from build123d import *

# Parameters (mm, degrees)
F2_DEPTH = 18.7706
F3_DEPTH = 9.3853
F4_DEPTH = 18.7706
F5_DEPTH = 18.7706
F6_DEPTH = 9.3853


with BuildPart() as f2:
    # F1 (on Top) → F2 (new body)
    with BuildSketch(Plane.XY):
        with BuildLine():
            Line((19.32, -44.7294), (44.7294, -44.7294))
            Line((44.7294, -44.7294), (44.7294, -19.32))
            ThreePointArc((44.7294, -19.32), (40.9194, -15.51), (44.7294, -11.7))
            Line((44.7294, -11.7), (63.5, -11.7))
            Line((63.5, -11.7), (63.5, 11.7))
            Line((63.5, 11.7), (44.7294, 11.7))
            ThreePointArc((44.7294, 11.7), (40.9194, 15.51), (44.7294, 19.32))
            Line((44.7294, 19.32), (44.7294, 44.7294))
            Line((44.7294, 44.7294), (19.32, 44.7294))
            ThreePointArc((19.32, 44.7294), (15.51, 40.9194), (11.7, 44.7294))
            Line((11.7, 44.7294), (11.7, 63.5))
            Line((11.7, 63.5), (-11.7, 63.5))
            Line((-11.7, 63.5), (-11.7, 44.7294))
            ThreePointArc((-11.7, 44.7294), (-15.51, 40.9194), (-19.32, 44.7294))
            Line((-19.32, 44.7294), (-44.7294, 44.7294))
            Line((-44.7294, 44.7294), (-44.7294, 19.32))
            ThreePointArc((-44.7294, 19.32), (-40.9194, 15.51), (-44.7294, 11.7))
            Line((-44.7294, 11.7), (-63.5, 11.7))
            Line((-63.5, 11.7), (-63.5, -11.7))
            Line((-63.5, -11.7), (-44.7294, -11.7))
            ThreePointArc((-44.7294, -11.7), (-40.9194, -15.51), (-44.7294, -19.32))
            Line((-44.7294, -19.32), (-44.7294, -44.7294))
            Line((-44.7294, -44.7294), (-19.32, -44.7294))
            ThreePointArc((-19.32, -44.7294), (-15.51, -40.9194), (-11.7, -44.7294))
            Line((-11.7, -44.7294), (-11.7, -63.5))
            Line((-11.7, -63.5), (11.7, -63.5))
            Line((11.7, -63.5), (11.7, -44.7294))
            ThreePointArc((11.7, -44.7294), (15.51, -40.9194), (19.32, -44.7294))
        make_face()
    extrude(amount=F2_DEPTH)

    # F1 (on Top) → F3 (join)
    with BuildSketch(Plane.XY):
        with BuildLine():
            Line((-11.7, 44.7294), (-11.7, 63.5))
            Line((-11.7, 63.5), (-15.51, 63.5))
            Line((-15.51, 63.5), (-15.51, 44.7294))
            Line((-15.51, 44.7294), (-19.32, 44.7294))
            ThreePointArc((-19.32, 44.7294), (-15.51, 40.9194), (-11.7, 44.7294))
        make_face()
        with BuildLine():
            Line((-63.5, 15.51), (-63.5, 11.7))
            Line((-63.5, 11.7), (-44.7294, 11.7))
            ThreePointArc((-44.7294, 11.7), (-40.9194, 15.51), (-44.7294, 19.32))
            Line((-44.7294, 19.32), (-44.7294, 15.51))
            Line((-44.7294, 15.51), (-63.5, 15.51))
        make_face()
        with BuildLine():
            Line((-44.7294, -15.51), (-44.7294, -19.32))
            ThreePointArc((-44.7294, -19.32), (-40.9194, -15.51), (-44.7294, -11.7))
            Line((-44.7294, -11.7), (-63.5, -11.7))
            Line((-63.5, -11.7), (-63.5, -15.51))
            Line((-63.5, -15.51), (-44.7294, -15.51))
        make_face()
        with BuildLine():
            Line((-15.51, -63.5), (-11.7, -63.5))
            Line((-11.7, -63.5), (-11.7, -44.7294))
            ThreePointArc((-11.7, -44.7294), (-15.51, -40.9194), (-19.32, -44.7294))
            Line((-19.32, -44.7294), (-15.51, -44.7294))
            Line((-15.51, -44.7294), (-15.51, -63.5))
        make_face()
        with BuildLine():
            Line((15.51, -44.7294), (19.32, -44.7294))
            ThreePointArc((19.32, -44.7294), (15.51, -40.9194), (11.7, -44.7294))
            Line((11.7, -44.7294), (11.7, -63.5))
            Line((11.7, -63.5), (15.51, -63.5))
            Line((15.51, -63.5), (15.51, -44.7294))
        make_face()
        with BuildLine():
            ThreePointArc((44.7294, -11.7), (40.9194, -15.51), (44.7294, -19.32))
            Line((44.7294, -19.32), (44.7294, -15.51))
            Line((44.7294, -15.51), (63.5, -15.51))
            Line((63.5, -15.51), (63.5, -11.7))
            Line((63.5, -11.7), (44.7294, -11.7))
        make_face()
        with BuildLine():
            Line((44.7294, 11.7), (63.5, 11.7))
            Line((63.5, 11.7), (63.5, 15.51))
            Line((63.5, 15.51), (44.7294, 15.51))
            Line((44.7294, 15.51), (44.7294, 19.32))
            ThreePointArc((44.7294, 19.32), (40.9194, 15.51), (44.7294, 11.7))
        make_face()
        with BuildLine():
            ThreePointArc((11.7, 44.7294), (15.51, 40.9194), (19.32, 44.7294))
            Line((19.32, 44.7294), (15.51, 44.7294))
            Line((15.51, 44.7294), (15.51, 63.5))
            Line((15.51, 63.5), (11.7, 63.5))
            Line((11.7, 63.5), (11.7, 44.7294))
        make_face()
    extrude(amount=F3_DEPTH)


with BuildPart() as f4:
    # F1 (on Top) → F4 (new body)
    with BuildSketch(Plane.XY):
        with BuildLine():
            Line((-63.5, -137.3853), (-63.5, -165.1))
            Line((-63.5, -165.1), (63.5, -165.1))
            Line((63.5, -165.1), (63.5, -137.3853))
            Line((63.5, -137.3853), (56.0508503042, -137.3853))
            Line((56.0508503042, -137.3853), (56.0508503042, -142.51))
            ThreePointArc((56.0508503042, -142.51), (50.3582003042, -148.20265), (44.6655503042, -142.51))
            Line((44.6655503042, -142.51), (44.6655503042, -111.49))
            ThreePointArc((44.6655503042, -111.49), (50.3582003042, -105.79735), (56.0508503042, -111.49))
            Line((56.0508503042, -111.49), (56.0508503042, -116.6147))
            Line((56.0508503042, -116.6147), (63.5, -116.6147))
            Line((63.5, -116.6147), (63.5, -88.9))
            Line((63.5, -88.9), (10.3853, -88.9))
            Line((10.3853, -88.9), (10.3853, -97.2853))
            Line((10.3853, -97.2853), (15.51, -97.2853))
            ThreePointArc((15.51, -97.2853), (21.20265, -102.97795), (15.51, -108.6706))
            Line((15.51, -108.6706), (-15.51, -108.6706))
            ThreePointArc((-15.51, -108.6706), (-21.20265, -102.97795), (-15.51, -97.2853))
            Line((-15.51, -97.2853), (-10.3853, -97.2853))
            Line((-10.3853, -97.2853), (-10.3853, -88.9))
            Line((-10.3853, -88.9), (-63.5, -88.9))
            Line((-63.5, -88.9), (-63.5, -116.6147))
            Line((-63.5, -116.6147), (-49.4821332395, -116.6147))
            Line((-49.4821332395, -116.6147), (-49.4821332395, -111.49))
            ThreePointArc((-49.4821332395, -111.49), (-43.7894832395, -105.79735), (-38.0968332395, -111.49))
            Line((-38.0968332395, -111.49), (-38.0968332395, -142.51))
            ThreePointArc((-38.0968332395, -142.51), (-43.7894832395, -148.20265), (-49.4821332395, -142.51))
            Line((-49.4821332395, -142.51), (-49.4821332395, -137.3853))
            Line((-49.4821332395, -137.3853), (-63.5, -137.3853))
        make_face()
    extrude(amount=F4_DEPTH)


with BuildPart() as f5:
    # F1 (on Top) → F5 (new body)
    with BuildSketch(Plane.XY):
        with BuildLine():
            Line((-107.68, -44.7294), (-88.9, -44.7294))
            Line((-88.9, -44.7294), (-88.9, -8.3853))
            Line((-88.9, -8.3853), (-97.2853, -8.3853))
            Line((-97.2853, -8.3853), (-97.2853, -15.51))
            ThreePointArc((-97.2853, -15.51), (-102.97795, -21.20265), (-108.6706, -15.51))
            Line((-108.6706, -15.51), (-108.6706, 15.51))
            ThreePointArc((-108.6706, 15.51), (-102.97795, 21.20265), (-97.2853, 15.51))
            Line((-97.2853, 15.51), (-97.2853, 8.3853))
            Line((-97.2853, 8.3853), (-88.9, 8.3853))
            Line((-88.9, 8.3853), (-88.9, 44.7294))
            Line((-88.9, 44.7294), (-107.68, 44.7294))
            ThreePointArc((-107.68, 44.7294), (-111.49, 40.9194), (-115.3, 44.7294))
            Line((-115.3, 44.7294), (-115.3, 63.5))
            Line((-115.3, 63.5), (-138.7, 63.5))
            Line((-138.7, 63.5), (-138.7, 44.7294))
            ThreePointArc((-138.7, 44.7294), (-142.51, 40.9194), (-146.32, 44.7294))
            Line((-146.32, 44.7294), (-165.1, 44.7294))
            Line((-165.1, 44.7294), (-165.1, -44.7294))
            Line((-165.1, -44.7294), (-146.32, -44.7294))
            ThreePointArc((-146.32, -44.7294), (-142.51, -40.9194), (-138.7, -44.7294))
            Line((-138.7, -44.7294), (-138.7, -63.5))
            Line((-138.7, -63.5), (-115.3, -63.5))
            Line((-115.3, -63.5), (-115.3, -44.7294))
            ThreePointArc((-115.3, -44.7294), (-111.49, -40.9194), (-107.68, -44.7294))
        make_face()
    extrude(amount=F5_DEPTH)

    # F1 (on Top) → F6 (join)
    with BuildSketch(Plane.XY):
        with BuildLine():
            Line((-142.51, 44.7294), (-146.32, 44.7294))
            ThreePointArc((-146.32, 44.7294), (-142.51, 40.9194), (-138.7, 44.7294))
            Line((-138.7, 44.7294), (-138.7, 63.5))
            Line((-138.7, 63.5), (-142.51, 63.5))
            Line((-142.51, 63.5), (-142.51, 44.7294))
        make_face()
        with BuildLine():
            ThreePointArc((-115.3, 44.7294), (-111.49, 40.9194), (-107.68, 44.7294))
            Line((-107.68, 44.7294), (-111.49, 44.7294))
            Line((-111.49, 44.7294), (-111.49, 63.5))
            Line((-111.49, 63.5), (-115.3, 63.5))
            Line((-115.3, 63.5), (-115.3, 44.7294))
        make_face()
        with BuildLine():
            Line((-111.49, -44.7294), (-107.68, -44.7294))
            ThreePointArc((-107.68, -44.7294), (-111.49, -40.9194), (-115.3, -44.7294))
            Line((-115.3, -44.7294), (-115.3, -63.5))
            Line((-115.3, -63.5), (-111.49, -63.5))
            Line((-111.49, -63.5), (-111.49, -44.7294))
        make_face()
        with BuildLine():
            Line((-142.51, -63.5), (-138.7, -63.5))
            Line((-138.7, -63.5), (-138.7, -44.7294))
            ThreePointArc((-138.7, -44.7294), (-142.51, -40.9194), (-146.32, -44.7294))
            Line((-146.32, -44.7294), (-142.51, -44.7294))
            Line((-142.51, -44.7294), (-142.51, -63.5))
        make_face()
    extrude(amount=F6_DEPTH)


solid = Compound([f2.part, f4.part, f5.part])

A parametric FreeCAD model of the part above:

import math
import FreeCAD as App
import Part
import Sketcher
Q = App.Units.Quantity

doc = App.newDocument("Part")
body = doc.addObject("PartDesign::Body", "Body")

# Sketch on XY plane
sketch1 = body.newObject("Sketcher::SketchObject", "Sketch")
sketch1.AttachmentSupport = (doc.getObject("XY_Plane"), [""])
sketch1.MapMode = "FlatFace"
sketch1.addGeometry([
    Part.LineSegment(App.Vector(19.3, -44.7, 0), App.Vector(44.7, -44.7, 0)),  # 0
    Part.LineSegment(App.Vector(44.7, -44.7, 0), App.Vector(44.7, -19.3, 0)),  # 1
    Part.ArcOfCircle(Part.Circle(App.Vector(44.7, -15.5, 0), App.Vector(0, 0, 1), 3.8), math.radians(90), math.radians(270)),  # 2
    Part.LineSegment(App.Vector(44.7, -11.7, 0), App.Vector(63.5, -11.7, 0)),  # 3
    Part.LineSegment(App.Vector(63.5, -11.7, 0), App.Vector(63.5, 11.7, 0)),  # 4
    Part.LineSegment(App.Vector(63.5, 11.7, 0), App.Vector(44.7, 11.7, 0)),  # 5
    Part.ArcOfCircle(Part.Circle(App.Vector(44.7, 15.5, 0), App.Vector(0, 0, 1), 3.8), math.radians(90), math.radians(270)),  # 6
    Part.LineSegment(App.Vector(44.7, 19.3, 0), App.Vector(44.7, 44.7, 0)),  # 7
    Part.LineSegment(App.Vector(44.7, 44.7, 0), App.Vector(19.3, 44.7, 0)),  # 8
    Part.ArcOfCircle(Part.Circle(App.Vector(15.5, 44.7, 0), App.Vector(0, 0, 1), 3.8), math.radians(180), math.radians(360)),  # 9
    Part.LineSegment(App.Vector(11.7, 44.7, 0), App.Vector(11.7, 63.5, 0)),  # 10
    Part.LineSegment(App.Vector(11.7, 63.5, 0), App.Vector(-11.7, 63.5, 0)),  # 11
    Part.LineSegment(App.Vector(-11.7, 63.5, 0), App.Vector(-11.7, 44.7, 0)),  # 12
    Part.ArcOfCircle(Part.Circle(App.Vector(-15.5, 44.7, 0), App.Vector(0, 0, 1), 3.8), math.radians(180), math.radians(360)),  # 13
    Part.LineSegment(App.Vector(-19.3, 44.7, 0), App.Vector(-44.7, 44.7, 0)),  # 14
    Part.LineSegment(App.Vector(-44.7, 44.7, 0), App.Vector(-44.7, 19.3, 0)),  # 15
    Part.ArcOfCircle(Part.Circle(App.Vector(-44.7, 15.5, 0), App.Vector(0, 0, 1), 3.8), math.radians(-90), math.radians(90)),  # 16
    Part.LineSegment(App.Vector(-44.7, 11.7, 0), App.Vector(-63.5, 11.7, 0)),  # 17
    Part.LineSegment(App.Vector(-63.5, 11.7, 0), App.Vector(-63.5, -11.7, 0)),  # 18
    Part.LineSegment(App.Vector(-63.5, -11.7, 0), App.Vector(-44.7, -11.7, 0)),  # 19
    Part.ArcOfCircle(Part.Circle(App.Vector(-44.7, -15.5, 0), App.Vector(0, 0, 1), 3.8), math.radians(-90), math.radians(90)),  # 20
    Part.LineSegment(App.Vector(-44.7, -19.3, 0), App.Vector(-44.7, -44.7, 0)),  # 21
    Part.LineSegment(App.Vector(-44.7, -44.7, 0), App.Vector(-19.3, -44.7, 0)),  # 22
    Part.ArcOfCircle(Part.Circle(App.Vector(-15.5, -44.7, 0), App.Vector(0, 0, 1), 3.8), math.radians(0), math.radians(180)),  # 23
    Part.LineSegment(App.Vector(-11.7, -44.7, 0), App.Vector(-11.7, -63.5, 0)),  # 24
    Part.LineSegment(App.Vector(-11.7, -63.5, 0), App.Vector(11.7, -63.5, 0)),  # 25
    Part.LineSegment(App.Vector(11.7, -63.5, 0), App.Vector(11.7, -44.7, 0)),  # 26
    Part.ArcOfCircle(Part.Circle(App.Vector(15.5, -44.7, 0), App.Vector(0, 0, 1), 3.8), math.radians(0), math.radians(180)),  # 27
], False)
sketch1.addConstraint([
    Sketcher.Constraint("Coincident", 0, 2, 1, 1),
    Sketcher.Constraint("Coincident", 1, 2, 2, 2),
    Sketcher.Constraint("Tangent", 2, 1, 3, 1),
    Sketcher.Constraint("Coincident", 3, 2, 4, 1),
    Sketcher.Constraint("Coincident", 4, 2, 5, 1),
    Sketcher.Constraint("Tangent", 5, 2, 6, 2),
    Sketcher.Constraint("Coincident", 6, 1, 7, 1),
    Sketcher.Constraint("Coincident", 7, 2, 8, 1),
    Sketcher.Constraint("Coincident", 8, 2, 9, 2),
    Sketcher.Constraint("Tangent", 9, 1, 10, 1),
    Sketcher.Constraint("Coincident", 10, 2, 11, 1),
    Sketcher.Constraint("Coincident", 11, 2, 12, 1),
    Sketcher.Constraint("Tangent", 12, 2, 13, 2),
    Sketcher.Constraint("Coincident", 13, 1, 14, 1),
    Sketcher.Constraint("Coincident", 14, 2, 15, 1),
    Sketcher.Constraint("Coincident", 15, 2, 16, 2),
    Sketcher.Constraint("Tangent", 16, 1, 17, 1),
    Sketcher.Constraint("Coincident", 17, 2, 18, 1),
    Sketcher.Constraint("Coincident", 18, 2, 19, 1),
    Sketcher.Constraint("Tangent", 19, 2, 20, 2),
    Sketcher.Constraint("Coincident", 20, 1, 21, 1),
    Sketcher.Constraint("Coincident", 21, 2, 22, 1),
    Sketcher.Constraint("Coincident", 22, 2, 23, 2),
    Sketcher.Constraint("Tangent", 23, 1, 24, 1),
    Sketcher.Constraint("Coincident", 24, 2, 25, 1),
    Sketcher.Constraint("Coincident", 25, 2, 26, 1),
    Sketcher.Constraint("Tangent", 26, 2, 27, 2),
    Sketcher.Constraint("Coincident", 27, 1, 0, 1),
    Sketcher.Constraint("Horizontal", 0),
    Sketcher.Constraint("Vertical", 1),
    Sketcher.Constraint("Horizontal", 3),
    Sketcher.Constraint("Vertical", 4),
    Sketcher.Constraint("Horizontal", 5),
    Sketcher.Constraint("Vertical", 7),
    Sketcher.Constraint("Horizontal", 8),
    Sketcher.Constraint("Vertical", 10),
    Sketcher.Constraint("Horizontal", 11),
    Sketcher.Constraint("Vertical", 12),
    Sketcher.Constraint("Horizontal", 14),
    Sketcher.Constraint("Vertical", 15),
    Sketcher.Constraint("Horizontal", 17),
    Sketcher.Constraint("Vertical", 18),
    Sketcher.Constraint("Horizontal", 19),
    Sketcher.Constraint("Vertical", 21),
    Sketcher.Constraint("Horizontal", 22),
    Sketcher.Constraint("Vertical", 24),
    Sketcher.Constraint("Horizontal", 25),
    Sketcher.Constraint("Vertical", 26),
    Sketcher.Constraint("Equal", 2, 6),
    Sketcher.Constraint("Equal", 6, 9),
    Sketcher.Constraint("Equal", 9, 13),
    Sketcher.Constraint("Equal", 13, 16),
    Sketcher.Constraint("Equal", 16, 20),
    Sketcher.Constraint("Equal", 20, 23),
    Sketcher.Constraint("Equal", 23, 27),
    Sketcher.Constraint("Symmetric", 2, 3, 16, 3, -1, 1),
    Sketcher.Constraint("Symmetric", 6, 3, 20, 3, -1, 1),
    Sketcher.Constraint("Symmetric", 9, 3, 23, 3, -1, 1),
    Sketcher.Constraint("Symmetric", 13, 3, 27, 3, -1, 1),
    Sketcher.Constraint("Symmetric", 0, 2, 14, 2, -1, 1),
    Sketcher.Constraint("Symmetric", 7, 2, 21, 2, -1, 1),
    Sketcher.Constraint("Symmetric", 9, 3, 13, 3, -2),
    Sketcher.Constraint("Symmetric", 6, 3, 16, 3, -2),
    Sketcher.Constraint("Symmetric", 7, 2, 14, 2, -2),
    Sketcher.Constraint("Horizontal", 27, 3, 0, 2),
    Sketcher.Constraint("Vertical", 6, 3, 0, 2),
    Sketcher.Constraint("Equal", 5, 17),
    Sketcher.Constraint("Equal", 22, 1),
    Sketcher.Constraint("Equal", 25, 4),
    Sketcher.Constraint("Equal", 19, 10),
    Sketcher.Constraint("Equal", 12, 24),
    Sketcher.Constraint("Radius", 2, Q("0.15 in")),
    Sketcher.Constraint("DistanceX", -1, 1, 3, 2, Q("2.5 in")),
    Sketcher.Constraint("DistanceX", 3, 1, 3, 2, Q("0.739 in")),
    Sketcher.Constraint("DistanceX", 0, 1, 0, 2, Q("25.4094 mm")),
])
pad1 = body.newObject("PartDesign::Pad", "Pad")
pad1.Profile = sketch1
pad1.Length = Q("0.739 in")

# Sketch on XY plane
sketch2 = body.newObject("Sketcher::SketchObject", "Sketch001")
sketch2.AttachmentSupport = (doc.getObject("XY_Plane"), [""])
sketch2.MapMode = "FlatFace"
sketch2.addGeometry([
    Part.LineSegment(App.Vector(-11.7, 44.7, 0), App.Vector(-11.7, 63.5, 0)),  # 0
    Part.LineSegment(App.Vector(-11.7, 63.5, 0), App.Vector(-15.5, 63.5, 0)),  # 1
    Part.LineSegment(App.Vector(-15.5, 63.5, 0), App.Vector(-15.5, 44.7, 0)),  # 2
    Part.LineSegment(App.Vector(-15.5, 44.7, 0), App.Vector(-19.3, 44.7, 0)),  # 3
    Part.ArcOfCircle(Part.Circle(App.Vector(-15.5, 44.7, 0), App.Vector(0, 0, 1), 3.8), math.radians(180), math.radians(360)),  # 4
    Part.LineSegment(App.Vector(-63.5, 15.5, 0), App.Vector(-63.5, 11.7, 0)),  # 5
    Part.LineSegment(App.Vector(-63.5, 11.7, 0), App.Vector(-44.7, 11.7, 0)),  # 6
    Part.ArcOfCircle(Part.Circle(App.Vector(-44.7, 15.5, 0), App.Vector(0, 0, 1), 3.8), math.radians(-90), math.radians(90)),  # 7
    Part.LineSegment(App.Vector(-44.7, 19.3, 0), App.Vector(-44.7, 15.5, 0)),  # 8
    Part.LineSegment(App.Vector(-44.7, 15.5, 0), App.Vector(-63.5, 15.5, 0)),  # 9
    Part.LineSegment(App.Vector(-44.7, -15.5, 0), App.Vector(-44.7, -19.3, 0)),  # 10
    Part.ArcOfCircle(Part.Circle(App.Vector(-44.7, -15.5, 0), App.Vector(0, 0, 1), 3.8), math.radians(-90), math.radians(90)),  # 11
    Part.LineSegment(App.Vector(-44.7, -11.7, 0), App.Vector(-63.5, -11.7, 0)),  # 12
    Part.LineSegment(App.Vector(-63.5, -11.7, 0), App.Vector(-63.5, -15.5, 0)),  # 13
    Part.LineSegment(App.Vector(-63.5, -15.5, 0), App.Vector(-44.7, -15.5, 0)),  # 14
    Part.LineSegment(App.Vector(-15.5, -63.5, 0), App.Vector(-11.7, -63.5, 0)),  # 15
    Part.LineSegment(App.Vector(-11.7, -63.5, 0), App.Vector(-11.7, -44.7, 0)),  # 16
    Part.ArcOfCircle(Part.Circle(App.Vector(-15.5, -44.7, 0), App.Vector(0, 0, 1), 3.8), math.radians(0), math.radians(180)),  # 17
    Part.LineSegment(App.Vector(-19.3, -44.7, 0), App.Vector(-15.5, -44.7, 0)),  # 18
    Part.LineSegment(App.Vector(-15.5, -44.7, 0), App.Vector(-15.5, -63.5, 0)),  # 19
    Part.LineSegment(App.Vector(15.5, -44.7, 0), App.Vector(19.3, -44.7, 0)),  # 20
    Part.ArcOfCircle(Part.Circle(App.Vector(15.5, -44.7, 0), App.Vector(0, 0, 1), 3.8), math.radians(0), math.radians(180)),  # 21
    Part.LineSegment(App.Vector(11.7, -44.7, 0), App.Vector(11.7, -63.5, 0)),  # 22
    Part.LineSegment(App.Vector(11.7, -63.5, 0), App.Vector(15.5, -63.5, 0)),  # 23
    Part.LineSegment(App.Vector(15.5, -63.5, 0), App.Vector(15.5, -44.7, 0)),  # 24
    Part.ArcOfCircle(Part.Circle(App.Vector(44.7, -15.5, 0), App.Vector(0, 0, 1), 3.8), math.radians(90), math.radians(270)),  # 25
    Part.LineSegment(App.Vector(44.7, -19.3, 0), App.Vector(44.7, -15.5, 0)),  # 26
    Part.LineSegment(App.Vector(44.7, -15.5, 0), App.Vector(63.5, -15.5, 0)),  # 27
    Part.LineSegment(App.Vector(63.5, -15.5, 0), App.Vector(63.5, -11.7, 0)),  # 28
    Part.LineSegment(App.Vector(63.5, -11.7, 0), App.Vector(44.7, -11.7, 0)),  # 29
    Part.LineSegment(App.Vector(44.7, 11.7, 0), App.Vector(63.5, 11.7, 0)),  # 30
    Part.LineSegment(App.Vector(63.5, 11.7, 0), App.Vector(63.5, 15.5, 0)),  # 31
    Part.LineSegment(App.Vector(63.5, 15.5, 0), App.Vector(44.7, 15.5, 0)),  # 32
    Part.LineSegment(App.Vector(44.7, 15.5, 0), App.Vector(44.7, 19.3, 0)),  # 33
    Part.ArcOfCircle(Part.Circle(App.Vector(44.7, 15.5, 0), App.Vector(0, 0, 1), 3.8), math.radians(90), math.radians(270)),  # 34
    Part.ArcOfCircle(Part.Circle(App.Vector(15.5, 44.7, 0), App.Vector(0, 0, 1), 3.8), math.radians(180), math.radians(360)),  # 35
    Part.LineSegment(App.Vector(19.3, 44.7, 0), App.Vector(15.5, 44.7, 0)),  # 36
    Part.LineSegment(App.Vector(15.5, 44.7, 0), App.Vector(15.5, 63.5, 0)),  # 37
    Part.LineSegment(App.Vector(15.5, 63.5, 0), App.Vector(11.7, 63.5, 0)),  # 38
    Part.LineSegment(App.Vector(11.7, 63.5, 0), App.Vector(11.7, 44.7, 0)),  # 39
], False)
sketch2.addConstraint([
    Sketcher.Constraint("Coincident", 0, 2, 1, 1),
    Sketcher.Constraint("Coincident", 1, 2, 2, 1),
    Sketcher.Constraint("Coincident", 2, 2, 3, 1),
    Sketcher.Constraint("Coincident", 3, 2, 4, 1),
    Sketcher.Constraint("Tangent", 4, 2, 0, 1),
    Sketcher.Constraint("Coincident", 5, 2, 6, 1),
    Sketcher.Constraint("Tangent", 6, 2, 7, 1),
    Sketcher.Constraint("Coincident", 7, 2, 8, 1),
    Sketcher.Constraint("Coincident", 8, 2, 9, 1),
    Sketcher.Constraint("Coincident", 9, 2, 5, 1),
    Sketcher.Constraint("Coincident", 10, 2, 11, 1),
    Sketcher.Constraint("Tangent", 11, 2, 12, 1),
    Sketcher.Constraint("Coincident", 12, 2, 13, 1),
    Sketcher.Constraint("Coincident", 13, 2, 14, 1),
    Sketcher.Constraint("Coincident", 14, 2, 10, 1),
    Sketcher.Constraint("Coincident", 15, 2, 16, 1),
    Sketcher.Constraint("Tangent", 16, 2, 17, 1),
    Sketcher.Constraint("Coincident", 17, 2, 18, 1),
    Sketcher.Constraint("Coincident", 18, 2, 19, 1),
    Sketcher.Constraint("Coincident", 19, 2, 15, 1),
    Sketcher.Constraint("Coincident", 20, 2, 21, 1),
    Sketcher.Constraint("Tangent", 21, 2, 22, 1),
    Sketcher.Constraint("Coincident", 22, 2, 23, 1),
    Sketcher.Constraint("Coincident", 23, 2, 24, 1),
    Sketcher.Constraint("Coincident", 24, 2, 20, 1),
    Sketcher.Constraint("Coincident", 25, 2, 26, 1),
    Sketcher.Constraint("Coincident", 26, 2, 27, 1),
    Sketcher.Constraint("Coincident", 27, 2, 28, 1),
    Sketcher.Constraint("Coincident", 28, 2, 29, 1),
    Sketcher.Constraint("Tangent", 29, 2, 25, 1),
    Sketcher.Constraint("Coincident", 30, 2, 31, 1),
    Sketcher.Constraint("Coincident", 31, 2, 32, 1),
    Sketcher.Constraint("Coincident", 32, 2, 33, 1),
    Sketcher.Constraint("Coincident", 33, 2, 34, 1),
    Sketcher.Constraint("Tangent", 34, 2, 30, 1),
    Sketcher.Constraint("Coincident", 35, 2, 36, 1),
    Sketcher.Constraint("Coincident", 36, 2, 37, 1),
    Sketcher.Constraint("Coincident", 37, 2, 38, 1),
    Sketcher.Constraint("Coincident", 38, 2, 39, 1),
    Sketcher.Constraint("Tangent", 39, 2, 35, 1),
    Sketcher.Constraint("Vertical", 0),
    Sketcher.Constraint("Horizontal", 1),
    Sketcher.Constraint("Vertical", 2),
    Sketcher.Constraint("Horizontal", 3),
    Sketcher.Constraint("Vertical", 5),
    Sketcher.Constraint("Horizontal", 6),
    Sketcher.Constraint("Vertical", 8),
    Sketcher.Constraint("Horizontal", 9),
    Sketcher.Constraint("Vertical", 10),
    Sketcher.Constraint("Horizontal", 12),
    Sketcher.Constraint("Vertical", 13),
    Sketcher.Constraint("Horizontal", 14),
    Sketcher.Constraint("Horizontal", 15),
    Sketcher.Constraint("Vertical", 16),
    Sketcher.Constraint("Horizontal", 18),
    Sketcher.Constraint("Vertical", 19),
    Sketcher.Constraint("Horizontal", 20),
    Sketcher.Constraint("Vertical", 22),
    Sketcher.Constraint("Horizontal", 23),
    Sketcher.Constraint("Vertical", 24),
    Sketcher.Constraint("Vertical", 26),
    Sketcher.Constraint("Horizontal", 27),
    Sketcher.Constraint("Vertical", 28),
    Sketcher.Constraint("Horizontal", 29),
    Sketcher.Constraint("Horizontal", 30),
    Sketcher.Constraint("Vertical", 31),
    Sketcher.Constraint("Horizontal", 32),
    Sketcher.Constraint("Vertical", 33),
    Sketcher.Constraint("Horizontal", 36),
    Sketcher.Constraint("Vertical", 37),
    Sketcher.Constraint("Horizontal", 38),
    Sketcher.Constraint("Vertical", 39),
    Sketcher.Constraint("Coincident", 2, 2, 4, 3),
    Sketcher.Constraint("Coincident", 8, 2, 7, 3),
    Sketcher.Constraint("Coincident", 14, 2, 11, 3),
    Sketcher.Constraint("Coincident", 18, 2, 17, 3),
    Sketcher.Constraint("Coincident", 24, 2, 21, 3),
    Sketcher.Constraint("Coincident", 26, 2, 25, 3),
    Sketcher.Constraint("Coincident", 32, 2, 34, 3),
    Sketcher.Constraint("Coincident", 36, 2, 35, 3),
    Sketcher.Constraint("Equal", 4, 7),
    Sketcher.Constraint("Equal", 7, 11),
    Sketcher.Constraint("Equal", 11, 17),
    Sketcher.Constraint("Equal", 17, 21),
    Sketcher.Constraint("Equal", 21, 25),
    Sketcher.Constraint("Equal", 25, 34),
    Sketcher.Constraint("Equal", 34, 35),
    Sketcher.Constraint("Symmetric", 4, 3, 21, 3, -1, 1),
    Sketcher.Constraint("Symmetric", 7, 3, 25, 3, -1, 1),
    Sketcher.Constraint("Symmetric", 11, 3, 34, 3, -1, 1),
    Sketcher.Constraint("Symmetric", 17, 3, 35, 3, -1, 1),
    Sketcher.Constraint("Symmetric", 17, 3, 21, 3, -2),
    Sketcher.Constraint("Symmetric", 11, 3, 25, 3, -2),
    Sketcher.Constraint("Horizontal", 19, 2, 22, 2),
    Sketcher.Constraint("Horizontal", 1, 2, 37, 2),
    Sketcher.Constraint("Vertical", 9, 2, 12, 2),
    Sketcher.Constraint("Vertical", 28, 2, 30, 2),
    Sketcher.Constraint("Equal", 14, 27),
    Sketcher.Constraint("Equal", 32, 0),
    Sketcher.Constraint("Equal", 2, 16),
    Sketcher.Constraint("Radius", 4, Q("0.15 in")),
    Sketcher.Constraint("DistanceY", -1, 1, 0, 2, Q("2.5 in")),
    Sketcher.Constraint("DistanceX", 5, 2, -1, 1, Q("2.5 in")),
    Sketcher.Constraint("DistanceX", 6, 1, 6, 2, Q("0.739 in")),
    Sketcher.Constraint("DistanceX", 4, 3, -1, 1, Q("15.51 mm")),
    Sketcher.Constraint("DistanceY", -1, 1, 7, 3, Q("15.51 mm")),
])
pad2 = body.newObject("PartDesign::Pad", "Pad001")
pad2.Profile = sketch2
pad2.Length = Q("0.3695 in")
body2 = doc.addObject("PartDesign::Body", "Body001")

# Sketch on XY plane
sketch3 = body2.newObject("Sketcher::SketchObject", "Sketch002")
sketch3.AttachmentSupport = (doc.getObject("XY_Plane001"), [""])
sketch3.MapMode = "FlatFace"
sketch3.addGeometry([
    Part.LineSegment(App.Vector(-64, -137, 0), App.Vector(-64, -165, 0)),  # 0
    Part.LineSegment(App.Vector(-64, -165, 0), App.Vector(64, -165, 0)),  # 1
    Part.LineSegment(App.Vector(64, -165, 0), App.Vector(64, -137, 0)),  # 2
    Part.LineSegment(App.Vector(64, -137, 0), App.Vector(56, -137, 0)),  # 3
    Part.LineSegment(App.Vector(56, -137, 0), App.Vector(56, -143, 0)),  # 4
    Part.ArcOfCircle(Part.Circle(App.Vector(50, -143, 0), App.Vector(0, 0, 1), 6), math.radians(180), math.radians(360)),  # 5
    Part.LineSegment(App.Vector(45, -143, 0), App.Vector(45, -111, 0)),  # 6
    Part.ArcOfCircle(Part.Circle(App.Vector(50, -111, 0), App.Vector(0, 0, 1), 6), math.radians(0), math.radians(180)),  # 7
    Part.LineSegment(App.Vector(56, -111, 0), App.Vector(56, -117, 0)),  # 8
    Part.LineSegment(App.Vector(56, -117, 0), App.Vector(64, -117, 0)),  # 9
    Part.LineSegment(App.Vector(64, -117, 0), App.Vector(64, -89, 0)),  # 10
    Part.LineSegment(App.Vector(64, -89, 0), App.Vector(10, -89, 0)),  # 11
    Part.LineSegment(App.Vector(10, -89, 0), App.Vector(10, -97, 0)),  # 12
    Part.LineSegment(App.Vector(10, -97, 0), App.Vector(16, -97, 0)),  # 13
    Part.ArcOfCircle(Part.Circle(App.Vector(16, -103, 0), App.Vector(0, 0, 1), 6), math.radians(-90), math.radians(90)),  # 14
    Part.LineSegment(App.Vector(16, -109, 0), App.Vector(-16, -109, 0)),  # 15
    Part.ArcOfCircle(Part.Circle(App.Vector(-16, -103, 0), App.Vector(0, 0, 1), 6), math.radians(90), math.radians(270)),  # 16
    Part.LineSegment(App.Vector(-16, -97, 0), App.Vector(-10, -97, 0)),  # 17
    Part.LineSegment(App.Vector(-10, -97, 0), App.Vector(-10, -89, 0)),  # 18
    Part.LineSegment(App.Vector(-10, -89, 0), App.Vector(-64, -89, 0)),  # 19
    Part.LineSegment(App.Vector(-64, -89, 0), App.Vector(-64, -117, 0)),  # 20
    Part.LineSegment(App.Vector(-64, -117, 0), App.Vector(-49, -117, 0)),  # 21
    Part.LineSegment(App.Vector(-49, -117, 0), App.Vector(-49, -111, 0)),  # 22
    Part.ArcOfCircle(Part.Circle(App.Vector(-44, -111, 0), App.Vector(0, 0, 1), 6), math.radians(0), math.radians(180)),  # 23
    Part.LineSegment(App.Vector(-38, -111, 0), App.Vector(-38, -143, 0)),  # 24
    Part.ArcOfCircle(Part.Circle(App.Vector(-44, -143, 0), App.Vector(0, 0, 1), 6), math.radians(180), math.radians(360)),  # 25
    Part.LineSegment(App.Vector(-49, -143, 0), App.Vector(-49, -137, 0)),  # 26
    Part.LineSegment(App.Vector(-49, -137, 0), App.Vector(-64, -137, 0)),  # 27
], False)
sketch3.addConstraint([
    Sketcher.Constraint("Coincident", 0, 2, 1, 1),
    Sketcher.Constraint("Coincident", 1, 2, 2, 1),
    Sketcher.Constraint("Coincident", 2, 2, 3, 1),
    Sketcher.Constraint("Coincident", 3, 2, 4, 1),
    Sketcher.Constraint("Tangent", 4, 2, 5, 2),
    Sketcher.Constraint("Tangent", 5, 1, 6, 1),
    Sketcher.Constraint("Tangent", 6, 2, 7, 2),
    Sketcher.Constraint("Tangent", 7, 1, 8, 1),
    Sketcher.Constraint("Coincident", 8, 2, 9, 1),
    Sketcher.Constraint("Coincident", 9, 2, 10, 1),
    Sketcher.Constraint("Coincident", 10, 2, 11, 1),
    Sketcher.Constraint("Coincident", 11, 2, 12, 1),
    Sketcher.Constraint("Coincident", 12, 2, 13, 1),
    Sketcher.Constraint("Tangent", 13, 2, 14, 2),
    Sketcher.Constraint("Tangent", 14, 1, 15, 1),
    Sketcher.Constraint("Tangent", 15, 2, 16, 2),
    Sketcher.Constraint("Tangent", 16, 1, 17, 1),
    Sketcher.Constraint("Coincident", 17, 2, 18, 1),
    Sketcher.Constraint("Coincident", 18, 2, 19, 1),
    Sketcher.Constraint("Coincident", 19, 2, 20, 1),
    Sketcher.Constraint("Coincident", 20, 2, 21, 1),
    Sketcher.Constraint("Coincident", 21, 2, 22, 1),
    Sketcher.Constraint("Tangent", 22, 2, 23, 2),
    Sketcher.Constraint("Tangent", 23, 1, 24, 1),
    Sketcher.Constraint("Tangent", 24, 2, 25, 2),
    Sketcher.Constraint("Tangent", 25, 1, 26, 1),
    Sketcher.Constraint("Coincident", 26, 2, 27, 1),
    Sketcher.Constraint("Coincident", 27, 2, 0, 1),
    Sketcher.Constraint("Vertical", 0),
    Sketcher.Constraint("Horizontal", 1),
    Sketcher.Constraint("Vertical", 2),
    Sketcher.Constraint("Horizontal", 3),
    Sketcher.Constraint("Vertical", 4),
    Sketcher.Constraint("Vertical", 6),
    Sketcher.Constraint("Vertical", 8),
    Sketcher.Constraint("Horizontal", 9),
    Sketcher.Constraint("Vertical", 10),
    Sketcher.Constraint("Horizontal", 11),
    Sketcher.Constraint("Vertical", 12),
    Sketcher.Constraint("Horizontal", 13),
    Sketcher.Constraint("Horizontal", 15),
    Sketcher.Constraint("Horizontal", 17),
    Sketcher.Constraint("Vertical", 18),
    Sketcher.Constraint("Horizontal", 19),
    Sketcher.Constraint("Vertical", 20),
    Sketcher.Constraint("Horizontal", 21),
    Sketcher.Constraint("Vertical", 22),
    Sketcher.Constraint("Vertical", 24),
    Sketcher.Constraint("Vertical", 26),
    Sketcher.Constraint("Horizontal", 27),
    Sketcher.Constraint("Equal", 5, 7),
    Sketcher.Constraint("Equal", 7, 14),
    Sketcher.Constraint("Equal", 14, 16),
    Sketcher.Constraint("Equal", 16, 23),
    Sketcher.Constraint("Equal", 23, 25),
    Sketcher.Constraint("Symmetric", 11, 2, 18, 2, -2),
    Sketcher.Constraint("Symmetric", 9, 2, 20, 2, -2),
    Sketcher.Constraint("Symmetric", 2, 2, 27, 2, -2),
    Sketcher.Constraint("Horizontal", 7, 3, 23, 3),
    Sketcher.Constraint("Horizontal", 5, 3, 25, 3),
    Sketcher.Constraint("Vertical", 2, 2, 9, 2),
    Sketcher.Constraint("Equal", 13, 17),
    Sketcher.Constraint("Equal", 17, 4),
    Sketcher.Constraint("Equal", 15, 6),
    Sketcher.Constraint("Equal", 4, 8),
    Sketcher.Constraint("Equal", 2, 10),
    Sketcher.Constraint("DistanceX", 1, 1, 1, 2, Q("5 in")),
    Sketcher.Constraint("DistanceY", 0, 2, -1, 1, Q("6.5 in")),
    Sketcher.Constraint("DistanceY", 10, 2, -1, 1, Q("3.5 in")),
    Sketcher.Constraint("Radius", 5, Q("5.69265 mm")),
    Sketcher.Constraint("DistanceY", 6, 2, 14, 1, Q("0.111 in")),
    Sketcher.Constraint("DistanceX", 11, 2, 11, 1, Q("53.1147 mm")),
    Sketcher.Constraint("DistanceX", 13, 1, 13, 2, Q("5.1247 mm")),
    Sketcher.Constraint("DistanceX", 3, 2, 3, 1, Q("7.44915 mm")),
    Sketcher.Constraint("DistanceX", 21, 1, 21, 2, Q("14.017867 mm")),
])
pad3 = body2.newObject("PartDesign::Pad", "Pad002")
pad3.Profile = sketch3
pad3.Length = Q("0.739 in")
body3 = doc.addObject("PartDesign::Body", "Body002")

# Sketch on XY plane
sketch4 = body3.newObject("Sketcher::SketchObject", "Sketch003")
sketch4.AttachmentSupport = (doc.getObject("XY_Plane002"), [""])
sketch4.MapMode = "FlatFace"
sketch4.addGeometry([
    Part.LineSegment(App.Vector(-107.7, -44.7, 0), App.Vector(-88.9, -44.7, 0)),  # 0
    Part.LineSegment(App.Vector(-88.9, -44.7, 0), App.Vector(-88.9, -8.4, 0)),  # 1
    Part.LineSegment(App.Vector(-88.9, -8.4, 0), App.Vector(-97.3, -8.4, 0)),  # 2
    Part.LineSegment(App.Vector(-97.3, -8.4, 0), App.Vector(-97.3, -15.5, 0)),  # 3
    Part.ArcOfCircle(Part.Circle(App.Vector(-103, -15.5, 0), App.Vector(0, 0, 1), 5.7), math.radians(180), math.radians(360)),  # 4
    Part.LineSegment(App.Vector(-108.7, -15.5, 0), App.Vector(-108.7, 15.5, 0)),  # 5
    Part.ArcOfCircle(Part.Circle(App.Vector(-103, 15.5, 0), App.Vector(0, 0, 1), 5.7), math.radians(0), math.radians(180)),  # 6
    Part.LineSegment(App.Vector(-97.3, 15.5, 0), App.Vector(-97.3, 8.4, 0)),  # 7
    Part.LineSegment(App.Vector(-97.3, 8.4, 0), App.Vector(-88.9, 8.4, 0)),  # 8
    Part.LineSegment(App.Vector(-88.9, 8.4, 0), App.Vector(-88.9, 44.7, 0)),  # 9
    Part.LineSegment(App.Vector(-88.9, 44.7, 0), App.Vector(-107.7, 44.7, 0)),  # 10
    Part.ArcOfCircle(Part.Circle(App.Vector(-111.5, 44.7, 0), App.Vector(0, 0, 1), 3.8), math.radians(180), math.radians(360)),  # 11
    Part.LineSegment(App.Vector(-115.3, 44.7, 0), App.Vector(-115.3, 63.5, 0)),  # 12
    Part.LineSegment(App.Vector(-115.3, 63.5, 0), App.Vector(-138.7, 63.5, 0)),  # 13
    Part.LineSegment(App.Vector(-138.7, 63.5, 0), App.Vector(-138.7, 44.7, 0)),  # 14
    Part.ArcOfCircle(Part.Circle(App.Vector(-142.5, 44.7, 0), App.Vector(0, 0, 1), 3.8), math.radians(180), math.radians(360)),  # 15
    Part.LineSegment(App.Vector(-146.3, 44.7, 0), App.Vector(-165.1, 44.7, 0)),  # 16
    Part.LineSegment(App.Vector(-165.1, 44.7, 0), App.Vector(-165.1, -44.7, 0)),  # 17
    Part.LineSegment(App.Vector(-165.1, -44.7, 0), App.Vector(-146.3, -44.7, 0)),  # 18
    Part.ArcOfCircle(Part.Circle(App.Vector(-142.5, -44.7, 0), App.Vector(0, 0, 1), 3.8), math.radians(0), math.radians(180)),  # 19
    Part.LineSegment(App.Vector(-138.7, -44.7, 0), App.Vector(-138.7, -63.5, 0)),  # 20
    Part.LineSegment(App.Vector(-138.7, -63.5, 0), App.Vector(-115.3, -63.5, 0)),  # 21
    Part.LineSegment(App.Vector(-115.3, -63.5, 0), App.Vector(-115.3, -44.7, 0)),  # 22
    Part.ArcOfCircle(Part.Circle(App.Vector(-111.5, -44.7, 0), App.Vector(0, 0, 1), 3.8), math.radians(0), math.radians(180)),  # 23
], False)
sketch4.addConstraint([
    Sketcher.Constraint("Coincident", 0, 2, 1, 1),
    Sketcher.Constraint("Coincident", 1, 2, 2, 1),
    Sketcher.Constraint("Coincident", 2, 2, 3, 1),
    Sketcher.Constraint("Tangent", 3, 2, 4, 2),
    Sketcher.Constraint("Tangent", 4, 1, 5, 1),
    Sketcher.Constraint("Tangent", 5, 2, 6, 2),
    Sketcher.Constraint("Tangent", 6, 1, 7, 1),
    Sketcher.Constraint("Coincident", 7, 2, 8, 1),
    Sketcher.Constraint("Coincident", 8, 2, 9, 1),
    Sketcher.Constraint("Coincident", 9, 2, 10, 1),
    Sketcher.Constraint("Coincident", 10, 2, 11, 2),
    Sketcher.Constraint("Tangent", 11, 1, 12, 1),
    Sketcher.Constraint("Coincident", 12, 2, 13, 1),
    Sketcher.Constraint("Coincident", 13, 2, 14, 1),
    Sketcher.Constraint("Tangent", 14, 2, 15, 2),
    Sketcher.Constraint("Coincident", 15, 1, 16, 1),
    Sketcher.Constraint("Coincident", 16, 2, 17, 1),
    Sketcher.Constraint("Coincident", 17, 2, 18, 1),
    Sketcher.Constraint("Coincident", 18, 2, 19, 2),
    Sketcher.Constraint("Tangent", 19, 1, 20, 1),
    Sketcher.Constraint("Coincident", 20, 2, 21, 1),
    Sketcher.Constraint("Coincident", 21, 2, 22, 1),
    Sketcher.Constraint("Tangent", 22, 2, 23, 2),
    Sketcher.Constraint("Coincident", 23, 1, 0, 1),
    Sketcher.Constraint("Horizontal", 0),
    Sketcher.Constraint("Vertical", 1),
    Sketcher.Constraint("Horizontal", 2),
    Sketcher.Constraint("Vertical", 3),
    Sketcher.Constraint("Vertical", 5),
    Sketcher.Constraint("Vertical", 7),
    Sketcher.Constraint("Horizontal", 8),
    Sketcher.Constraint("Vertical", 9),
    Sketcher.Constraint("Horizontal", 10),
    Sketcher.Constraint("Vertical", 12),
    Sketcher.Constraint("Horizontal", 13),
    Sketcher.Constraint("Vertical", 14),
    Sketcher.Constraint("Horizontal", 16),
    Sketcher.Constraint("Vertical", 17),
    Sketcher.Constraint("Horizontal", 18),
    Sketcher.Constraint("Vertical", 20),
    Sketcher.Constraint("Horizontal", 21),
    Sketcher.Constraint("Vertical", 22),
    Sketcher.Constraint("Equal", 4, 6),
    Sketcher.Constraint("Equal", 11, 15),
    Sketcher.Constraint("Equal", 15, 19),
    Sketcher.Constraint("Equal", 19, 23),
    Sketcher.Constraint("Symmetric", 15, 3, 19, 3, -1),
    Sketcher.Constraint("Symmetric", 11, 3, 23, 3, -1),
    Sketcher.Constraint("Symmetric", 1, 2, 8, 2, -1),
    Sketcher.Constraint("Horizontal", 11, 3, 15, 3),
    Sketcher.Constraint("Horizontal", 23, 3, 0, 2),
    Sketcher.Constraint("Horizontal", 15, 3, 9, 2),
    Sketcher.Constraint("Horizontal", 14, 2, 15, 1),
    Sketcher.Constraint("Horizontal", 0, 2, 17, 2),
    Sketcher.Constraint("Equal", 10, 16),
    Sketcher.Constraint("Equal", 3, 7),
    Sketcher.Constraint("Equal", 14, 20),
    Sketcher.Constraint("Radius", 11, Q("0.15 in")),
    Sketcher.Constraint("DistanceX", 0, 2, -1, 1, Q("3.5 in")),
    Sketcher.Constraint("DistanceY", -1, 1, 12, 2, Q("2.5 in")),
    Sketcher.Constraint("DistanceX", 16, 2, -1, 1, Q("6.5 in")),
    Sketcher.Constraint("DistanceY", 12, 1, 12, 2, Q("0.739 in")),
    Sketcher.Constraint("DistanceY", 3, 2, 3, 1, Q("0.2805 in")),
    Sketcher.Constraint("Radius", 4, Q("5.69265 mm")),
    Sketcher.Constraint("DistanceX", 23, 3, 4, 1, Q("0.111 in")),
    Sketcher.Constraint("DistanceX", 0, 1, 0, 2, Q("18.78 mm")),
    Sketcher.Constraint("DistanceY", 1, 1, 1, 2, Q("36.3441 mm")),
])
pad4 = body3.newObject("PartDesign::Pad", "Pad003")
pad4.Profile = sketch4
pad4.Length = Q("0.739 in")

# Sketch on XY plane
sketch5 = body3.newObject("Sketcher::SketchObject", "Sketch004")
sketch5.AttachmentSupport = (doc.getObject("XY_Plane002"), [""])
sketch5.MapMode = "FlatFace"
sketch5.addGeometry([
    Part.LineSegment(App.Vector(-142.5, 44.7, 0), App.Vector(-146.3, 44.7, 0)),  # 0
    Part.ArcOfCircle(Part.Circle(App.Vector(-142.5, 44.7, 0), App.Vector(0, 0, 1), 3.8), math.radians(180), math.radians(360)),  # 1
    Part.LineSegment(App.Vector(-138.7, 44.7, 0), App.Vector(-138.7, 63.5, 0)),  # 2
    Part.LineSegment(App.Vector(-138.7, 63.5, 0), App.Vector(-142.5, 63.5, 0)),  # 3
    Part.LineSegment(App.Vector(-142.5, 63.5, 0), App.Vector(-142.5, 44.7, 0)),  # 4
    Part.ArcOfCircle(Part.Circle(App.Vector(-111.5, 44.7, 0), App.Vector(0, 0, 1), 3.8), math.radians(180), math.radians(360)),  # 5
    Part.LineSegment(App.Vector(-107.7, 44.7, 0), App.Vector(-111.5, 44.7, 0)),  # 6
    Part.LineSegment(App.Vector(-111.5, 44.7, 0), App.Vector(-111.5, 63.5, 0)),  # 7
    Part.LineSegment(App.Vector(-111.5, 63.5, 0), App.Vector(-115.3, 63.5, 0)),  # 8
    Part.LineSegment(App.Vector(-115.3, 63.5, 0), App.Vector(-115.3, 44.7, 0)),  # 9
    Part.LineSegment(App.Vector(-111.5, -44.7, 0), App.Vector(-107.7, -44.7, 0)),  # 10
    Part.ArcOfCircle(Part.Circle(App.Vector(-111.5, -44.7, 0), App.Vector(0, 0, 1), 3.8), math.radians(0), math.radians(180)),  # 11
    Part.LineSegment(App.Vector(-115.3, -44.7, 0), App.Vector(-115.3, -63.5, 0)),  # 12
    Part.LineSegment(App.Vector(-115.3, -63.5, 0), App.Vector(-111.5, -63.5, 0)),  # 13
    Part.LineSegment(App.Vector(-111.5, -63.5, 0), App.Vector(-111.5, -44.7, 0)),  # 14
    Part.LineSegment(App.Vector(-142.5, -63.5, 0), App.Vector(-138.7, -63.5, 0)),  # 15
    Part.LineSegment(App.Vector(-138.7, -63.5, 0), App.Vector(-138.7, -44.7, 0)),  # 16
    Part.ArcOfCircle(Part.Circle(App.Vector(-142.5, -44.7, 0), App.Vector(0, 0, 1), 3.8), math.radians(0), math.radians(180)),  # 17
    Part.LineSegment(App.Vector(-146.3, -44.7, 0), App.Vector(-142.5, -44.7, 0)),  # 18
    Part.LineSegment(App.Vector(-142.5, -44.7, 0), App.Vector(-142.5, -63.5, 0)),  # 19
], False)
sketch5.addConstraint([
    Sketcher.Constraint("Coincident", 0, 2, 1, 1),
    Sketcher.Constraint("Tangent", 1, 2, 2, 1),
    Sketcher.Constraint("Coincident", 2, 2, 3, 1),
    Sketcher.Constraint("Coincident", 3, 2, 4, 1),
    Sketcher.Constraint("Coincident", 4, 2, 0, 1),
    Sketcher.Constraint("Coincident", 5, 2, 6, 1),
    Sketcher.Constraint("Coincident", 6, 2, 7, 1),
    Sketcher.Constraint("Coincident", 7, 2, 8, 1),
    Sketcher.Constraint("Coincident", 8, 2, 9, 1),
    Sketcher.Constraint("Tangent", 9, 2, 5, 1),
    Sketcher.Constraint("Coincident", 10, 2, 11, 1),
    Sketcher.Constraint("Tangent", 11, 2, 12, 1),
    Sketcher.Constraint("Coincident", 12, 2, 13, 1),
    Sketcher.Constraint("Coincident", 13, 2, 14, 1),
    Sketcher.Constraint("Coincident", 14, 2, 10, 1),
    Sketcher.Constraint("Coincident", 15, 2, 16, 1),
    Sketcher.Constraint("Tangent", 16, 2, 17, 1),
    Sketcher.Constraint("Coincident", 17, 2, 18, 1),
    Sketcher.Constraint("Coincident", 18, 2, 19, 1),
    Sketcher.Constraint("Coincident", 19, 2, 15, 1),
    Sketcher.Constraint("Horizontal", 0),
    Sketcher.Constraint("Vertical", 2),
    Sketcher.Constraint("Horizontal", 3),
    Sketcher.Constraint("Vertical", 4),
    Sketcher.Constraint("Horizontal", 6),
    Sketcher.Constraint("Vertical", 7),
    Sketcher.Constraint("Horizontal", 8),
    Sketcher.Constraint("Vertical", 9),
    Sketcher.Constraint("Horizontal", 10),
    Sketcher.Constraint("Vertical", 12),
    Sketcher.Constraint("Horizontal", 13),
    Sketcher.Constraint("Vertical", 14),
    Sketcher.Constraint("Horizontal", 15),
    Sketcher.Constraint("Vertical", 16),
    Sketcher.Constraint("Horizontal", 18),
    Sketcher.Constraint("Vertical", 19),
    Sketcher.Constraint("Coincident", 4, 2, 1, 3),
    Sketcher.Constraint("Coincident", 6, 2, 5, 3),
    Sketcher.Constraint("Coincident", 14, 2, 11, 3),
    Sketcher.Constraint("Coincident", 18, 2, 17, 3),
    Sketcher.Constraint("Equal", 1, 5),
    Sketcher.Constraint("Equal", 5, 11),
    Sketcher.Constraint("Equal", 11, 17),
    Sketcher.Constraint("Symmetric", 5, 3, 11, 3, -1),
    Sketcher.Constraint("Symmetric", 1, 3, 17, 3, -1),
    Sketcher.Constraint("Horizontal", 1, 3, 5, 3),
    Sketcher.Constraint("Horizontal", 3, 2, 7, 2),
    Sketcher.Constraint("Horizontal", 13, 2, 15, 2),
    Sketcher.Constraint("Equal", 9, 12),
    Sketcher.Constraint("Radius", 1, Q("0.15 in")),
    Sketcher.Constraint("DistanceY", -1, 1, 2, 2, Q("2.5 in")),
    Sketcher.Constraint("DistanceY", 2, 1, 2, 2, Q("0.739 in")),
    Sketcher.Constraint("DistanceX", 1, 3, -1, 1, Q("142.51 mm")),
    Sketcher.Constraint("DistanceX", 5, 3, -1, 1, Q("111.49 mm")),
])
pad5 = body3.newObject("PartDesign::Pad", "Pad004")
pad5.Profile = sketch5
pad5.Length = Q("0.3695 in")

doc.recompute()
